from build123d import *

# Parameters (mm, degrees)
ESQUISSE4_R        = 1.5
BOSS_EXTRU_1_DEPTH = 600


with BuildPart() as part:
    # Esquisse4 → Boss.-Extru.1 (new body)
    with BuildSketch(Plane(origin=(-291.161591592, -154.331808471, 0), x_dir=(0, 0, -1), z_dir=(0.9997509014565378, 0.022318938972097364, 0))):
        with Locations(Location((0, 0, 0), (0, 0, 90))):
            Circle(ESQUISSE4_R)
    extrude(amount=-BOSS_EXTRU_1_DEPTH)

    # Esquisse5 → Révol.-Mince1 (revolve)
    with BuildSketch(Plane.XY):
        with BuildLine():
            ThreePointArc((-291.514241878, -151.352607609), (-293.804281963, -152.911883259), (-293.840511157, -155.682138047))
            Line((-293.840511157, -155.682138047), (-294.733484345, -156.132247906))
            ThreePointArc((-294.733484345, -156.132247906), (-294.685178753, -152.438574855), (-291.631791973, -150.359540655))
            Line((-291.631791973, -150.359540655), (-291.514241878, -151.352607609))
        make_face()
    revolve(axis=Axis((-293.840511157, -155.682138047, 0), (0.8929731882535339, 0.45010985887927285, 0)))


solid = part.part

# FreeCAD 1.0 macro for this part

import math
import FreeCAD as App
import Part
import Sketcher

doc = App.newDocument("Part")
body = doc.addObject("PartDesign::Body", "Body")

# Sketch on an angled plane
sketch1 = body.newObject("Sketcher::SketchObject", "Sketch")
sketch1.Placement = App.Placement(App.Vector(-291.161592, -154.331808, 0), App.Rotation(App.Vector(0, 0, -1), App.Vector(-0.022318939, 0.999750901, 0), App.Vector(0.999750901, 0.022318939, 0), "ZXY"))
sketch1.addGeometry(Part.Circle(App.Vector(0, 0, 0), App.Vector(0, 0, 1), 1.5), False)
sketch1.addConstraint(Sketcher.Constraint("Coincident", 0, 3, -1, 1))
sketch1.addConstraint(Sketcher.Constraint("Diameter", 0, 3.0))
pad1 = body.newObject("PartDesign::Pad", "Pad")
pad1.Profile = sketch1
pad1.Length = 600
pad1.Reversed = True

# Sketch on XY plane
sketch2 = body.newObject("Sketcher::SketchObject", "Sketch001")
sketch2.AttachmentSupport = (doc.getObject("XY_Plane"), [""])
sketch2.MapMode = "FlatFace"
sketch2.addGeometry(Part.ArcOfCircle(Part.Circle(App.Vector(-291.2, -154.3, 0), App.Vector(0, 0, 1), 3), math.radians(97), math.radians(207)), False)
sketch2.addGeometry(Part.LineSegment(App.Vector(-291.5, -151.4, 0), App.Vector(-291.6, -150.4, 0)), False)
sketch2.addGeometry(Part.ArcOfCircle(Part.Circle(App.Vector(-291.2, -154.3, 0), App.Vector(0, 0, 1), 4), math.radians(97), math.radians(207)), False)
sketch2.addGeometry(Part.LineSegment(App.Vector(-294.7, -156.1, 0), App.Vector(-293.8, -155.7, 0)), False)
sketch2.addGeometry(Part.LineSegment(App.Vector(-294.7, -156.1, 0), App.Vector(-289.9, -153.7, 0)), True)  # axis
sketch2.addConstraint(Sketcher.Constraint("Coincident", 0, 1, 1, 1))
sketch2.addConstraint(Sketcher.Constraint("Coincident", 1, 2, 2, 1))
sketch2.addConstraint(Sketcher.Constraint("Coincident", 2, 2, 3, 1))
sketch2.addConstraint(Sketcher.Constraint("Coincident", 3, 2, 0, 2))
sketch2.addConstraint(Sketcher.Constraint("Coincident", 2, 3, 0, 3))
sketch2.addConstraint(Sketcher.Constraint("Coincident", 4, 1, 2, 2))
sketch2.addConstraint(Sketcher.Constraint("Parallel", 3, 4))
sketch2.addConstraint(Sketcher.Constraint("Radius", 0, 3.0))
sketch2.addConstraint(Sketcher.Constraint("Radius", 2, 4.0))
sketch2.addConstraint(Sketcher.Constraint("DistanceY", 0, 3, 0, 1, 2.979201))
sketch2.addConstraint(Sketcher.Constraint("DistanceX", 1, 2, 0, 3, 0.4702))
sketch2.addConstraint(Sketcher.Constraint("Distance", 4, 5.368081))
sketch2.addConstraint(Sketcher.Constraint("DistanceX", 0, 3, -1, 1, 291.161592))
sketch2.addConstraint(Sketcher.Constraint("DistanceY", 0, 3, -1, 1, 154.331808))
sketch2.addConstraint(Sketcher.Constraint("DistanceX", 3, 2, -1, 1, 293.840511))
sketch2.addConstraint(Sketcher.Constraint("DistanceY", 4, 2, -1, 1, 153.716022))
revolution = body.newObject("PartDesign::Revolution", "Revolution")
revolution.Profile = sketch2
revolution.ReferenceAxis = (sketch2, ["Axis0"])
revolution.Angle = 360

doc.recompute()
